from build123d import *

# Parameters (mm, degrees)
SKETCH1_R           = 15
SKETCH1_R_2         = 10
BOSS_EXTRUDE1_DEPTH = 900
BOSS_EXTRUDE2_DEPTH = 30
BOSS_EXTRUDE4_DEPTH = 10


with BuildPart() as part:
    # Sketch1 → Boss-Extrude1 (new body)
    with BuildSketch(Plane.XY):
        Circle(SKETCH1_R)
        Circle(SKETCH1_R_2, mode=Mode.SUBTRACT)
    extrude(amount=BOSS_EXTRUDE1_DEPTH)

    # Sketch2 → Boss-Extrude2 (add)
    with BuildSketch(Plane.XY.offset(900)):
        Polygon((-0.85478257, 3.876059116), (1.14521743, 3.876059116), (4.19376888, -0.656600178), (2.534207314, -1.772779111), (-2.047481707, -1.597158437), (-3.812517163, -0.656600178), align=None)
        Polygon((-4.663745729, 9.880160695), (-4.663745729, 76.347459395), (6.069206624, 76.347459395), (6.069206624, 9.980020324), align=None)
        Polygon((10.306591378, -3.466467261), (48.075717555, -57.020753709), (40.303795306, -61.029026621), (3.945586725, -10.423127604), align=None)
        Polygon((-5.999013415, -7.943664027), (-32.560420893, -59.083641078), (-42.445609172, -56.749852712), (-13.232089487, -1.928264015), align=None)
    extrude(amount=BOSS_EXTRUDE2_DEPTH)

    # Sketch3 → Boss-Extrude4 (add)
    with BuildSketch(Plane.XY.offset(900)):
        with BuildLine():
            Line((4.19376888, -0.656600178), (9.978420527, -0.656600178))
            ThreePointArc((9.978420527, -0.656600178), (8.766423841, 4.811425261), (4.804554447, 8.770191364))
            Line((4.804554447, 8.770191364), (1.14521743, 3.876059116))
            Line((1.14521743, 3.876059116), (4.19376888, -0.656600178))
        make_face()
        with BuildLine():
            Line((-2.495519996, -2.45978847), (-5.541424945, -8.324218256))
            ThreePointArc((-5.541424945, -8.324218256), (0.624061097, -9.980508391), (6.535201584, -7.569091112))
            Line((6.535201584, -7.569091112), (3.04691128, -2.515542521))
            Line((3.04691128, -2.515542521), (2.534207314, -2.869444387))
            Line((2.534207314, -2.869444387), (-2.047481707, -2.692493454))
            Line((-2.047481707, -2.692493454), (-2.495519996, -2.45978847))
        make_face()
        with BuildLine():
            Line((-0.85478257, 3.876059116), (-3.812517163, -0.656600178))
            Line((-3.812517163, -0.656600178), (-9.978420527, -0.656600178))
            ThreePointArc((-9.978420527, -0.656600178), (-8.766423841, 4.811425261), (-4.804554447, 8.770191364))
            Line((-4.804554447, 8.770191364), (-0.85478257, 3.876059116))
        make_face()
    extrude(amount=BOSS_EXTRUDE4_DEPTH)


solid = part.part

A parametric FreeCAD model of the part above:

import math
import FreeCAD as App
import Part
import Sketcher

V = App.Vector

doc = App.newDocument("Part")
params = doc.addObject("Spreadsheet::Sheet", "Params")
for row, (alias, value) in enumerate([
    ("sketch1_diameter", "30 mm"),
    ("sketch1_diameter2", "20 mm"),
    ("pad1_length", "900 mm"),
    ("sketch2_width", "2 mm"),
    ("sketch2_length", "2 mm"),
    ("sketch2_length2", "2 mm"),
    ("pad2_length", "30 mm"),
    ("sketch3_radius", "10 mm"),
    ("pad3_length", "10 mm"),
], start=1):
    params.set(f"A{row}", alias)
    params.set(f"B{row}", "=" + value)
    params.setAlias(f"B{row}", alias)

body = doc.addObject("PartDesign::Body", "Body")
body.AllowCompound = True

# Sketch on XY plane
sketch1 = doc.addObject("Sketcher::SketchObject", "Sketch")
body.addObject(sketch1)
sketch1.AttachmentSupport = (doc.XY_Plane, [""])
sketch1.MapMode = "FlatFace"
sketch1.addGeometry([
    Part.Circle(V(0, 0, 0), V(0, 0, 1), 15),
    Part.Circle(V(0, 0, 0), V(0, 0, 1), 10),
], False)
sketch1.addConstraint([
    Sketcher.Constraint("Coincident", 0, 3, -1, 1),
    Sketcher.Constraint("Coincident", 1, 3, -1, 1),
    Sketcher.Constraint("Diameter", 0, 30.0),
    Sketcher.Constraint("Diameter", 1, 20.0),
])
sketch1.setExpression("Constraints[2]", "Params.sketch1_diameter")
sketch1.setExpression("Constraints[3]", "Params.sketch1_diameter2")
pad1 = doc.addObject("PartDesign::Pad", "Pad")
body.addObject(pad1)
pad1.Profile = sketch1
pad1.setExpression("Length", "Params.pad1_length")

# Sketch on XY plane
sketch2 = doc.addObject("Sketcher::SketchObject", "Sketch001")
body.addObject(sketch2)
sketch2.AttachmentSupport = (doc.XY_Plane, [""])
sketch2.MapMode = "FlatFace"
sketch2.AttachmentOffset = App.Placement(V(0, 0, 900), App.Rotation())
sketch2.addGeometry([
    Part.LineSegment(V(1.145217, 3.876059, 0), V(-0.854783, 3.876059, 0)),  # 0
    Part.LineSegment(V(-0.854783, 3.876059, 0), V(-3.812517, -0.6566, 0)),  # 1
    Part.LineSegment(V(-3.812517, -0.6566, 0), V(-2.047482, -1.597158, 0)),  # 2
    Part.LineSegment(V(-2.047482, -1.597158, 0), V(2.534207, -1.772779, 0)),  # 3
    Part.LineSegment(V(2.534207, -1.772779, 0), V(4.193769, -0.6566, 0)),  # 4
    Part.LineSegment(V(4.193769, -0.6566, 0), V(1.145217, 3.876059, 0)),  # 5
    Part.LineSegment(V(-4.663746, 76.347459, 0), V(-4.663746, 9.880161, 0)),  # 6
    Part.LineSegment(V(-4.663746, 9.880161, 0), V(6.069207, 9.98002, 0)),  # 7
    Part.LineSegment(V(6.069207, 9.98002, 0), V(6.069207, 76.347459, 0)),  # 8
    Part.LineSegment(V(6.069207, 76.347459, 0), V(-4.663746, 76.347459, 0)),  # 9
    Part.LineSegment(V(48.075718, -57.020754, 0), V(10.306591, -3.466467, 0)),  # 10
    Part.LineSegment(V(10.306591, -3.466467, 0), V(3.945587, -10.423128, 0)),  # 11
    Part.LineSegment(V(3.945587, -10.423128, 0), V(40.303795, -61.029027, 0)),  # 12
    Part.LineSegment(V(40.303795, -61.029027, 0), V(48.075718, -57.020754, 0)),  # 13
    Part.LineSegment(V(-32.560421, -59.083641, 0), V(-5.999013, -7.943664, 0)),  # 14
    Part.LineSegment(V(-5.999013, -7.943664, 0), V(-13.232089, -1.928264, 0)),  # 15
    Part.LineSegment(V(-13.232089, -1.928264, 0), V(-42.445609, -56.749853, 0)),  # 16
    Part.LineSegment(V(-42.445609, -56.749853, 0), V(-32.560421, -59.083641, 0)),  # 17
], False)
sketch2.addConstraint([
    Sketcher.Constraint("Coincident", 0, 2, 1, 1),
    Sketcher.Constraint("Coincident", 1, 2, 2, 1),
    Sketcher.Constraint("Coincident", 2, 2, 3, 1),
    Sketcher.Constraint("Coincident", 3, 2, 4, 1),
    Sketcher.Constraint("Coincident", 4, 2, 5, 1),
    Sketcher.Constraint("Coincident", 5, 2, 0, 1),
    Sketcher.Constraint("Coincident", 6, 2, 7, 1),
    Sketcher.Constraint("Coincident", 7, 2, 8, 1),
    Sketcher.Constraint("Coincident", 8, 2, 9, 1),
    Sketcher.Constraint("Coincident", 9, 2, 6, 1),
    Sketcher.Constraint("Coincident", 10, 2, 11, 1),
    Sketcher.Constraint("Coincident", 11, 2, 12, 1),
    Sketcher.Constraint("Coincident", 12, 2, 13, 1),
    Sketcher.Constraint("Coincident", 13, 2, 10, 1),
    Sketcher.Constraint("Coincident", 14, 2, 15, 1),
    Sketcher.Constraint("Coincident", 15, 2, 16, 1),
    Sketcher.Constraint("Coincident", 16, 2, 17, 1),
    Sketcher.Constraint("Coincident", 17, 2, 14, 1),
    Sketcher.Constraint("Horizontal", 0),
    Sketcher.Constraint("Vertical", 6),
    Sketcher.Constraint("Vertical", 8),
    Sketcher.Constraint("Horizontal", 9),
    Sketcher.Constraint("DistanceX", 0, 2, 0, 1, 2.0),
    Sketcher.Constraint("Distance", 2, 2.0),
    Sketcher.Constraint("Distance", 4, 2.0),
    Sketcher.Constraint("DistanceY", 6, 2, 6, 1, 66.467299),
    Sketcher.Constraint("DistanceX", 3, 2, 7, 2, 3.534999),
    Sketcher.Constraint("DistanceY", 8, 1, 8, 2, 66.367439),
    Sketcher.Constraint("DistanceY", 1, 2, -1, 1, 0.6566),
    Sketcher.Constraint("DistanceY", 4, 2, -1, 1, 0.6566),
    Sketcher.Constraint("DistanceX", 2, 2, 0, 2, 1.192699),
    Sketcher.Constraint("DistanceY", 0, 2, 6, 2, 6.004102),
    Sketcher.Constraint("DistanceY", 3, 2, 7, 2, 11.752799),
    Sketcher.Constraint("DistanceY", 12, 2, 11, 2, 50.605899),
    Sketcher.Constraint("DistanceX", 14, 2, 11, 2, 9.9446),
    Sketcher.Constraint("DistanceY", 14, 2, 15, 2, 6.0154),
    Sketcher.Constraint("Distance", 1, 5.412319),
    Sketcher.Constraint("Distance", 5, 5.462478),
    Sketcher.Constraint("Distance", 12, 62.31273),
    Sketcher.Constraint("Distance", 14, 57.626432),
    Sketcher.Constraint("DistanceX", 9, 2, 9, 1, 10.732952),
    Sketcher.Constraint("DistanceY", -1, 1, 0, 2, 3.876059),
    Sketcher.Constraint("DistanceX", 2, 2, -1, 1, 2.047482),
    Sketcher.Constraint("DistanceX", -1, 1, 10, 2, 10.306591),
    Sketcher.Constraint("DistanceX", 15, 2, -1, 1, 13.232089),
    Sketcher.Constraint("DistanceX", 16, 2, -1, 1, 42.445609),
    Sketcher.Constraint("DistanceX", 17, 2, -1, 1, 32.560421),
    Sketcher.Constraint("DistanceY", 17, 2, -1, 1, 59.083641),
    Sketcher.Constraint("DistanceY", 10, 2, 3, 2, 1.693688),
    Sketcher.Constraint("DistanceX", 3, 2, 11, 2, 1.411379),
    Sketcher.Constraint("DistanceY", 11, 2, 3, 2, 8.650348),
    Sketcher.Constraint("DistanceX", 11, 2, 13, 2, 44.130131),
    Sketcher.Constraint("DistanceY", 16, 2, 14, 2, 48.806189),
    Sketcher.Constraint("Distance", 10, 65.532957),
])
sketch2.setExpression("Constraints[22]", "Params.sketch2_width")
sketch2.setExpression("Constraints[23]", "Params.sketch2_length")
sketch2.setExpression("Constraints[24]", "Params.sketch2_length2")
pad2 = doc.addObject("PartDesign::Pad", "Pad001")
body.addObject(pad2)
pad2.Profile = sketch2
pad2.setExpression("Length", "Params.pad2_length")

# Sketch on XY plane
sketch3 = doc.addObject("Sketcher::SketchObject", "Sketch002")
body.addObject(sketch3)
sketch3.AttachmentSupport = (doc.XY_Plane, [""])
sketch3.MapMode = "FlatFace"
sketch3.AttachmentOffset = App.Placement(V(0, 0, 900), App.Rotation())
sketch3.addGeometry([
    Part.LineSegment(V(4.2, -0.7, 0), V(10, -0.7, 0)),  # 0
    Part.ArcOfCircle(Part.Circle(V(0, 0, 0), V(0, 0, 1), 10), math.radians(-4), math.radians(61)),  # 1
    Part.LineSegment(V(4.8, 8.8, 0), V(1.1, 3.9, 0)),  # 2
    Part.LineSegment(V(1.1, 3.9, 0), V(4.2, -0.7, 0)),  # 3
    Part.LineSegment(V(-2.5, -2.5, 0), V(-5.5, -8.3, 0)),  # 4
    Part.ArcOfCircle(Part.Circle(V(0, 0, 0), V(0, 0, 1), 10), math.radians(-124), math.radians(-49)),  # 5
    Part.LineSegment(V(6.5, -7.6, 0), V(3, -2.5, 0)),  # 6
    Part.LineSegment(V(3, -2.5, 0), V(2.5, -2.9, 0)),  # 7
    Part.LineSegment(V(2.5, -2.9, 0), V(-2, -2.7, 0)),  # 8
    Part.LineSegment(V(-2, -2.7, 0), V(-2.5, -2.5, 0)),  # 9
    Part.LineSegment(V(-3.8, -0.7, 0), V(-0.9, 3.9, 0)),  # 10
    Part.LineSegment(V(-0.9, 3.9, 0), V(-4.8, 8.8, 0)),  # 11
    Part.ArcOfCircle(Part.Circle(V(0, 0, 0), V(0, 0, 1), 10), math.radians(119), math.radians(184)),  # 12
    Part.LineSegment(V(-10, -0.7, 0), V(-3.8, -0.7, 0)),  # 13
], False)
sketch3.addConstraint([
    Sketcher.Constraint("Coincident", 0, 2, 1, 1),
    Sketcher.Constraint("Coincident", 1, 2, 2, 1),
    Sketcher.Constraint("Coincident", 2, 2, 3, 1),
    Sketcher.Constraint("Coincident", 3, 2, 0, 1),
    Sketcher.Constraint("Coincident", 4, 2, 5, 1),
    Sketcher.Constraint("Coincident", 5, 2, 6, 1),
    Sketcher.Constraint("Coincident", 6, 2, 7, 1),
    Sketcher.Constraint("Coincident", 7, 2, 8, 1),
    Sketcher.Constraint("Coincident", 8, 2, 9, 1),
    Sketcher.Constraint("Coincident", 9, 2, 4, 1),
    Sketcher.Constraint("Coincident", 10, 2, 11, 1),
    Sketcher.Constraint("Coincident", 11, 2, 12, 1),
    Sketcher.Constraint("Coincident", 12, 2, 13, 1),
    Sketcher.Constraint("Coincident", 13, 2, 10, 1),
    Sketcher.Constraint("Horizontal", 0),
    Sketcher.Constraint("Horizontal", 13),
    Sketcher.Constraint("Coincident", 1, 3, -1, 1),
    Sketcher.Constraint("Coincident", 5, 3, -1, 1),
    Sketcher.Constraint("Coincident", 12, 3, -1, 1),
    Sketcher.Constraint("Equal", 1, 5),
    Sketcher.Constraint("Equal", 5, 12),
    Sketcher.Constraint("Perpendicular", 6, 7),
    Sketcher.Constraint("Perpendicular", 4, 9),
    Sketcher.Constraint("Horizontal", 2, 2, 10, 2),
    Sketcher.Constraint("Horizontal", 1, 2, 11, 2),
    Sketcher.Constraint("Horizontal", 3, 2, 12, 2),
    Sketcher.Constraint("Radius", 1, 10.0),
    Sketcher.Constraint("DistanceX", 10, 2, 2, 2, 2.0),
    Sketcher.Constraint("DistanceX", 0, 1, 0, 2, 5.784652),
    Sketcher.Constraint("DistanceY", 0, 2, -1, 1, 0.6566),
    Sketcher.Constraint("DistanceX", -1, 1, 5, 2, 6.535202),
    Sketcher.Constraint("DistanceY", 7, 2, 6, 2, 0.353902),
    Sketcher.Constraint("DistanceX", 12, 2, 9, 2, 7.482901),
    Sketcher.Constraint("Distance", 3, 5.462478),
    Sketcher.Constraint("Distance", 10, 5.412319),
    Sketcher.Constraint("DistanceX", 13, 1, 13, 2, 6.165903),
    Sketcher.Constraint("DistanceY", -1, 1, 1, 2, 8.770191),
    Sketcher.Constraint("DistanceY", 4, 2, -1, 1, 8.324218),
    Sketcher.Constraint("DistanceX", -1, 1, 6, 2, 3.046911),
    Sketcher.Constraint("DistanceX", 8, 2, -1, 1, 2.047482),
    Sketcher.Constraint("DistanceY", 9, 2, -1, 1, 2.459788),
    Sketcher.Constraint("DistanceY", 5, 2, 6, 2, 5.053549),
])
sketch3.setExpression("Constraints[26]", "Params.sketch3_radius")
pad3 = doc.addObject("PartDesign::Pad", "Pad002")
body.addObject(pad3)
pad3.Profile = sketch3
pad3.setExpression("Length", "Params.pad3_length")

doc.recompute()
